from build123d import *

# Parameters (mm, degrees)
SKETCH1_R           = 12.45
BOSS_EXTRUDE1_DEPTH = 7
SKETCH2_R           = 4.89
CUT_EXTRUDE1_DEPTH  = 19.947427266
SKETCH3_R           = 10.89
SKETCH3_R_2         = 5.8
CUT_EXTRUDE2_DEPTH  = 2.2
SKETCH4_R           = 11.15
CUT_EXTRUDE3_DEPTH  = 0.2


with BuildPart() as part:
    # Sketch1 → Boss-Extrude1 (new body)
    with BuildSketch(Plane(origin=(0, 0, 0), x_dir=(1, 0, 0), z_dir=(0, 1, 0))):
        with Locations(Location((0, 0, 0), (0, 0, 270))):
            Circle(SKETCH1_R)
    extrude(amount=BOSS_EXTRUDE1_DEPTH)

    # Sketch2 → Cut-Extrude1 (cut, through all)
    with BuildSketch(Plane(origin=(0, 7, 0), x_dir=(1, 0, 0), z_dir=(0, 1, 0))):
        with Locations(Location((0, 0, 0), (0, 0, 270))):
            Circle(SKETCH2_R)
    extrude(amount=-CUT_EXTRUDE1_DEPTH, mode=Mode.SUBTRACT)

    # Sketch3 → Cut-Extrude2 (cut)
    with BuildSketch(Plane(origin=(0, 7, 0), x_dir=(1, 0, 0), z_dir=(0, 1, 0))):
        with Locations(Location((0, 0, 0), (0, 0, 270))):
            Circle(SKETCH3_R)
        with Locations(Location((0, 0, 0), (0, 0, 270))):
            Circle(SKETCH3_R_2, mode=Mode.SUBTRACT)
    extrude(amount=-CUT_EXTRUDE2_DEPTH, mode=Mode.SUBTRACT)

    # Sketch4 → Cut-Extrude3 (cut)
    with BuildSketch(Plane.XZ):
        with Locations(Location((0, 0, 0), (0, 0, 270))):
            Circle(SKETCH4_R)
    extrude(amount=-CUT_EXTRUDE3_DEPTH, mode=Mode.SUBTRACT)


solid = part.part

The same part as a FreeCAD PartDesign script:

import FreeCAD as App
import Part
import Sketcher
Q = App.Units.Quantity

doc = App.newDocument("Part")
params = doc.addObject("Spreadsheet::Sheet", "Params")
for row, (alias, value) in enumerate([
    ("sketch1_diameter", "24.9 mm"),
    ("pad1_length", "7 mm"),
    ("sketch2_diameter", "9.78 mm"),
    ("sketch3_diameter", "11.6 mm"),
    ("sketch3_diameter2", "21.78 mm"),
    ("pocket2_length", "2.2 mm"),
    ("sketch4_diameter", "22.3 mm"),
    ("pocket3_length", "0.2 mm"),
], start=1):
    params.set(f"A{row}", alias)
    params.set(f"B{row}", "=" + value)
    params.setAlias(f"B{row}", alias)

body = doc.addObject("PartDesign::Body", "Body")

sketch1 = body.newObject("Sketcher::SketchObject", "Sketch")
sketch1.AttachmentSupport = (doc.getObject("XZ_Plane"), [""])
sketch1.MapMode = "FlatFace"
sketch1.addGeometry(Part.Circle(App.Vector(0, 0, 0), App.Vector(0, 0, 1), 12.45), False)
sketch1.addConstraint(Sketcher.Constraint("Coincident", 0, 3, -1, 1))
sketch1.addConstraint(Sketcher.Constraint("Diameter", 0, Q("24.9 mm")))
sketch1.setExpression("Constraints[1]", "Params.sketch1_diameter")
pad1 = body.newObject("PartDesign::Pad", "Pad")
pad1.Profile = sketch1
pad1.setExpression("Length", "Params.pad1_length")
pad1.Reversed = True

sketch2 = body.newObject("Sketcher::SketchObject", "Sketch001")
sketch2.AttachmentSupport = (doc.getObject("XZ_Plane"), [""])
sketch2.MapMode = "FlatFace"
sketch2.AttachmentOffset = App.Placement(App.Vector(0, 0, -7), App.Rotation())
sketch2.addGeometry(Part.Circle(App.Vector(0, 0, 0), App.Vector(0, 0, 1), 4.89), False)
sketch2.addConstraint(Sketcher.Constraint("Coincident", 0, 3, -1, 1))
sketch2.addConstraint(Sketcher.Constraint("Diameter", 0, Q("9.78 mm")))
sketch2.setExpression("Constraints[1]", "Params.sketch2_diameter")
pocket1 = body.newObject("PartDesign::Pocket", "Pocket")
pocket1.Profile = sketch2
pocket1.Type = "ThroughAll"
pocket1.Reversed = True

sketch3 = body.newObject("Sketcher::SketchObject", "Sketch002")
sketch3.AttachmentSupport = (doc.getObject("XZ_Plane"), [""])
sketch3.MapMode = "FlatFace"
sketch3.AttachmentOffset = App.Placement(App.Vector(0, 0, -7), App.Rotation())
sketch3.addGeometry(Part.Circle(App.Vector(0, 0, 0), App.Vector(0, 0, 1), 10.89), False)
sketch3.addGeometry(Part.Circle(App.Vector(0, 0, 0), App.Vector(0, 0, 1), 5.8), False)
sketch3.addConstraint(Sketcher.Constraint("Coincident", 0, 3, -1, 1))
sketch3.addConstraint(Sketcher.Constraint("Coincident", 1, 3, -1, 1))
sketch3.addConstraint(Sketcher.Constraint("Diameter", 1, Q("11.6 mm")))
sketch3.addConstraint(Sketcher.Constraint("Diameter", 0, Q("21.78 mm")))
sketch3.setExpression("Constraints[2]", "Params.sketch3_diameter")
sketch3.setExpression("Constraints[3]", "Params.sketch3_diameter2")
pocket2 = body.newObject("PartDesign::Pocket", "Pocket001")
pocket2.Profile = sketch3
pocket2.setExpression("Length", "Params.pocket2_length")
pocket2.Reversed = True

sketch4 = body.newObject("Sketcher::SketchObject", "Sketch003")
sketch4.AttachmentSupport = (doc.getObject("XZ_Plane"), [""])
sketch4.MapMode = "FlatFace"
sketch4.addGeometry(Part.Circle(App.Vector(0, 0, 0), App.Vector(0, 0, 1), 11.15), False)
sketch4.addConstraint(Sketcher.Constraint("Coincident", 0, 3, -1, 1))
sketch4.addConstraint(Sketcher.Constraint("Diameter", 0, Q("22.3 mm")))
sketch4.setExpression("Constraints[1]", "Params.sketch4_diameter")
pocket3 = body.newObject("PartDesign::Pocket", "Pocket002")
pocket3.Profile = sketch4
pocket3.setExpression("Length", "Params.pocket3_length")

doc.recompute()
